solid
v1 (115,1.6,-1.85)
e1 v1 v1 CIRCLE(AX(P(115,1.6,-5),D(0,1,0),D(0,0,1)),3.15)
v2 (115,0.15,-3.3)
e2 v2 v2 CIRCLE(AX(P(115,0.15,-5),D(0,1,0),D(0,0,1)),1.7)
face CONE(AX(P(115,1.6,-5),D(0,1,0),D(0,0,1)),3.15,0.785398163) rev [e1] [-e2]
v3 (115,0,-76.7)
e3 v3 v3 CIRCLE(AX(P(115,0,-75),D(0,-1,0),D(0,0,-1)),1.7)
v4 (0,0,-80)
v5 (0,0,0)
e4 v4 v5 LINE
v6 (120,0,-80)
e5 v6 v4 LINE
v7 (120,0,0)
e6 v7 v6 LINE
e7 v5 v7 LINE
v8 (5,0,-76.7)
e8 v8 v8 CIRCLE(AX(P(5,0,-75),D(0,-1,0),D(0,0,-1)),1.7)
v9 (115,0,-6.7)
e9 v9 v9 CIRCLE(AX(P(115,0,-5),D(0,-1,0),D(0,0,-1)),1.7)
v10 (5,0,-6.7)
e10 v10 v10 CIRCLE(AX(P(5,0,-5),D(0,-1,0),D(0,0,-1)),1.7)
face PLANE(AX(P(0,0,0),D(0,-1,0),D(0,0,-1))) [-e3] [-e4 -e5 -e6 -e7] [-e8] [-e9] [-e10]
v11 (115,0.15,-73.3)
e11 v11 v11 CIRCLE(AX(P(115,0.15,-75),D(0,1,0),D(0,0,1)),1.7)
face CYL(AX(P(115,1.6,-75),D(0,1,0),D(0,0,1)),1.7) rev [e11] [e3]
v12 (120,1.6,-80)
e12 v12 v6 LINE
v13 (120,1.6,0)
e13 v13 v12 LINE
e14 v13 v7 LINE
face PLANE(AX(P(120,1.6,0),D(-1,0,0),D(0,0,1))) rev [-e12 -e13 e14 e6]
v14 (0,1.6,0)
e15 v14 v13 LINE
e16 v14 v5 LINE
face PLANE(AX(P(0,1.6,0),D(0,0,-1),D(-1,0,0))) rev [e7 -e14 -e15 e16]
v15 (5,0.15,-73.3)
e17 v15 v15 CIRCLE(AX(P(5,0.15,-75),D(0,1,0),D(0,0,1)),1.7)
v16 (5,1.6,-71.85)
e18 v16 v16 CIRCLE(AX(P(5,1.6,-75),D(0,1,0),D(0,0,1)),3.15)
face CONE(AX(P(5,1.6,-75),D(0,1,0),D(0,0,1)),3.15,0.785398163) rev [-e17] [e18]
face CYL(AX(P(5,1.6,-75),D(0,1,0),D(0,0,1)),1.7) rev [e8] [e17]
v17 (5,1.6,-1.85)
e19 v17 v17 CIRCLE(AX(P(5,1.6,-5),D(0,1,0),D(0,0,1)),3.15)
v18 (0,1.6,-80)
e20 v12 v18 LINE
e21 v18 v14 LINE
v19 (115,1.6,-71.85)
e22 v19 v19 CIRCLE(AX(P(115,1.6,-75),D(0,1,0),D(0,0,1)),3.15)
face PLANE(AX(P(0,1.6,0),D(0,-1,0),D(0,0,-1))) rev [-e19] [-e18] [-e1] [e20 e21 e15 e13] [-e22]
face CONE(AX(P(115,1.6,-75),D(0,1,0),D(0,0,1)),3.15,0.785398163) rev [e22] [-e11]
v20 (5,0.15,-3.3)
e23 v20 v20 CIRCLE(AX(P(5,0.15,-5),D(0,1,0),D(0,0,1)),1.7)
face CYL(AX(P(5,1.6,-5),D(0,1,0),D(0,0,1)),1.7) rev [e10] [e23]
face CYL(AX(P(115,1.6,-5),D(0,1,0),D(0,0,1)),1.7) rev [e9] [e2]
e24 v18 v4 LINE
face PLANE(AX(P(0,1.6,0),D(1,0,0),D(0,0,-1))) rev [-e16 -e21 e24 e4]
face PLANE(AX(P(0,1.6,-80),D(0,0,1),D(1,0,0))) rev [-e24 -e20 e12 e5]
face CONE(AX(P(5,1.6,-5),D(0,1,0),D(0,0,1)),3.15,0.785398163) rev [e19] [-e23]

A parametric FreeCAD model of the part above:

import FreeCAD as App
import Part
import Sketcher
from FreeCAD import Vector


def add_polygon(sketch, points):
    """Adds a closed chain of lines whose ends are joined by coincident constraints."""
    first, n = sketch.GeometryCount, len(points)
    for a, b in zip(points, points[1:] + points[:1]):
        sketch.addGeometry(Part.LineSegment(App.Vector(*a, 0), App.Vector(*b, 0)), False)
    for i in range(n):
        sketch.addConstraint(Sketcher.Constraint("Coincident", first + i, 2, first + (i + 1) % n, 1))

doc = App.newDocument("Part")
body = doc.addObject("PartDesign::Body", "Body")

# Sketch on XZ plane
sketch1 = body.newObject("Sketcher::SketchObject", "Sketch")
sketch1.AttachmentSupport = (doc.getObject("XZ_Plane"), [""])
sketch1.MapMode = "FlatFace"
add_polygon(sketch1, [(0, -80), (0, 0), (120, 0), (120, -80)])  # lines 0-3
sketch1.addConstraint([
    Sketcher.Constraint("Vertical", 0),
    Sketcher.Constraint("Horizontal", 1),
    Sketcher.Constraint("Vertical", 2),
    Sketcher.Constraint("Horizontal", 3),
    Sketcher.Constraint("Coincident", 0, 2, -1, 1),
    Sketcher.Constraint("DistanceX", 1, 1, 1, 2, 120.0),
    Sketcher.Constraint("DistanceY", 0, 1, 0, 2, 80.0),
])
pad1 = body.newObject("PartDesign::Pad", "Pad")
pad1.Profile = sketch1
pad1.Length = 1.6
pad1.Reversed = True

# Sketch on XZ plane
sketch2 = body.newObject("Sketcher::SketchObject", "Sketch001")
sketch2.AttachmentSupport = (doc.getObject("XZ_Plane"), [""])
sketch2.MapMode = "FlatFace"
sketch2.AttachmentOffset = App.Placement(Vector(0, 0, -1.6), App.Rotation())
sketch2.addGeometry([
    Part.Circle(Vector(5, -75, 0), Vector(0, 0, 1), 1.7),
    Part.Circle(Vector(5, -5, 0), Vector(0, 0, 1), 1.7),
    Part.Circle(Vector(115, -5, 0), Vector(0, 0, 1), 1.7),
    Part.Circle(Vector(115, -75, 0), Vector(0, 0, 1), 1.7),
], False)
sketch2.addConstraint([
    Sketcher.Constraint("Equal", 0, 1),
    Sketcher.Constraint("Equal", 1, 2),
    Sketcher.Constraint("Equal", 2, 3),
    Sketcher.Constraint("Horizontal", 1, 3, 2, 3),
    Sketcher.Constraint("Horizontal", 0, 3, 3, 3),
    Sketcher.Constraint("Vertical", 0, 3, 1, 3),
    Sketcher.Constraint("Vertical", 2, 3, 3, 3),
    Sketcher.Constraint("Diameter", 0, 3.4),
    Sketcher.Constraint("DistanceX", -1, 1, 0, 3, 5.0),
    Sketcher.Constraint("DistanceY", 0, 3, -1, 1, 75.0),
    Sketcher.Constraint("DistanceY", 1, 3, -1, 1, 5.0),
    Sketcher.Constraint("DistanceX", -1, 1, 2, 3, 115.0),
])
doc.recompute()
hole = body.newObject("PartDesign::Hole", "Hole")
hole.Profile = sketch2
hole.ThreadType = "None"
hole.Diameter = 3.4
hole.DepthType = "Dimension"
hole.Depth = 30
hole.DrillPoint = "Angled"
hole.DrillPointAngle = 118
hole.HoleCutType = "Countersink"
hole.HoleCutDiameter = 6.3
hole.HoleCutCountersinkAngle = 90
hole.Reversed = True

doc.recompute()
